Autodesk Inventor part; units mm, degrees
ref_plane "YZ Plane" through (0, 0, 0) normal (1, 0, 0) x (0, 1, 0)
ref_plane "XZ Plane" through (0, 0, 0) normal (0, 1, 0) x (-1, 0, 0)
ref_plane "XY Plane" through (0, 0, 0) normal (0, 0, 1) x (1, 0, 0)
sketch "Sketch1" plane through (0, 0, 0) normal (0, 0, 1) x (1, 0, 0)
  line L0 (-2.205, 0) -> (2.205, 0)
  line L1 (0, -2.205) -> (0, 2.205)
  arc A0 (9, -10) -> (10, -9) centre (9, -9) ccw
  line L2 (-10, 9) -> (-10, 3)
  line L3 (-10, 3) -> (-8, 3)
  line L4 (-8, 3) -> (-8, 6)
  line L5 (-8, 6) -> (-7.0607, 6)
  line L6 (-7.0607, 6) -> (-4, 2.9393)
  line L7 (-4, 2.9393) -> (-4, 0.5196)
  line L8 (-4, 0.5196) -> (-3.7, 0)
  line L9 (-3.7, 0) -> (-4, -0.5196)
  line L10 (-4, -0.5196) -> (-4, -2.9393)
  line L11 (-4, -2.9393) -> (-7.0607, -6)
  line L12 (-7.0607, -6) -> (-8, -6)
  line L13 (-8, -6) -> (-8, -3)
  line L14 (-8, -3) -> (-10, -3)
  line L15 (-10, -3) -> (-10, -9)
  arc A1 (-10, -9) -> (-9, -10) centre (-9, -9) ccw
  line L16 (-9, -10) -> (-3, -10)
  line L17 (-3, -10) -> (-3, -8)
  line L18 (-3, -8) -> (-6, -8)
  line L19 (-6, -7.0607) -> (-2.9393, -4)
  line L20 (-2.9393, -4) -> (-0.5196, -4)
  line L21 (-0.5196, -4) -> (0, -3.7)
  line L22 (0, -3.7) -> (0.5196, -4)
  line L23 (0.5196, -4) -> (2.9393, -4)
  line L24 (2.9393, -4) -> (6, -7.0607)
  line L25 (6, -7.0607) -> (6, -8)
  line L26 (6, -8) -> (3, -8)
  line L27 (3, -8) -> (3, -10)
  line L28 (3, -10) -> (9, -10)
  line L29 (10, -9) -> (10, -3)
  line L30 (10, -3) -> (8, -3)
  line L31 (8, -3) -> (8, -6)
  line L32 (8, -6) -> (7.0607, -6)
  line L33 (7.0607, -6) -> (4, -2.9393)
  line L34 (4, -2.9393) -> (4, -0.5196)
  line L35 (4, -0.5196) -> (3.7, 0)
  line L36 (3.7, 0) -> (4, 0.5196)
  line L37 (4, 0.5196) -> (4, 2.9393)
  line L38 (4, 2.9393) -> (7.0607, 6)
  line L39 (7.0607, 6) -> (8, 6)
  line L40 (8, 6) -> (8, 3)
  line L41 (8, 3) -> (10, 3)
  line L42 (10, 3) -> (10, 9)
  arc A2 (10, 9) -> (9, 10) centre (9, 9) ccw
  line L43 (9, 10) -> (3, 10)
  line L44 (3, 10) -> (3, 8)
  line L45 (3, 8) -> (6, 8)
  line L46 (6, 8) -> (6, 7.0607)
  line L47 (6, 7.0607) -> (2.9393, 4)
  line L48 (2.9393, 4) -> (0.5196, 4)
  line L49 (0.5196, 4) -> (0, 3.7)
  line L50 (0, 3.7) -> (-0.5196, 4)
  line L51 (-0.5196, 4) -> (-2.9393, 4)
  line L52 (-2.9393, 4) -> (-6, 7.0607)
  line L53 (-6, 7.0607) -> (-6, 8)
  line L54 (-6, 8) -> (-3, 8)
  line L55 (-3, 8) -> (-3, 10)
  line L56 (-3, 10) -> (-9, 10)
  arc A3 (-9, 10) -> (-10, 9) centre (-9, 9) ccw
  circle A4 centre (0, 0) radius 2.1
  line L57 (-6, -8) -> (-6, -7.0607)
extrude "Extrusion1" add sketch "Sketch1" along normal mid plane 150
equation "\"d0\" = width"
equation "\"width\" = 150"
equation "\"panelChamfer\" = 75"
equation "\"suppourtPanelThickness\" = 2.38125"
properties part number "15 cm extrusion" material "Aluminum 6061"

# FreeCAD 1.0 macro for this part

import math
import FreeCAD as App
import Part
import Sketcher
Q = App.Units.Quantity

doc = App.newDocument("Part")
params = doc.addObject("Spreadsheet::Sheet", "Params")
for row, (alias, value) in enumerate([
    ("sketch1_radius", "1 mm"),
    ("sketch1_diameter", "4.2 mm"),
    ("sketch1_width", "6 mm"),
    ("sketch1_width2", "2 mm"),
    ("sketch1_width3", "3 mm"),
    ("pad1_length", "150 mm"),
], start=1):
    params.set(f"A{row}", alias)
    params.set(f"B{row}", "=" + value)
    params.setAlias(f"B{row}", alias)

body = doc.addObject("PartDesign::Body", "Body")

sketch1 = body.newObject("Sketcher::SketchObject", "Sketch")
sketch1.AttachmentSupport = (doc.getObject("XY_Plane"), [""])
sketch1.MapMode = "FlatFace"
sketch1.addGeometry(Part.LineSegment(App.Vector(3, -10, 0), App.Vector(9, -10, 0)), False)
sketch1.addGeometry(Part.ArcOfCircle(Part.Circle(App.Vector(9, -9, 0), App.Vector(0, 0, 1), 1), math.radians(-90), math.radians(0)), False)
sketch1.addGeometry(Part.LineSegment(App.Vector(10, -9, 0), App.Vector(10, -3, 0)), False)
sketch1.addGeometry(Part.LineSegment(App.Vector(10, -3, 0), App.Vector(8, -3, 0)), False)
sketch1.addGeometry(Part.LineSegment(App.Vector(8, -3, 0), App.Vector(8, -6, 0)), False)
sketch1.addGeometry(Part.LineSegment(App.Vector(8, -6, 0), App.Vector(7.1, -6, 0)), False)
sketch1.addGeometry(Part.LineSegment(App.Vector(7.1, -6, 0), App.Vector(4, -2.9, 0)), False)
sketch1.addGeometry(Part.LineSegment(App.Vector(4, -2.9, 0), App.Vector(4, -0.5, 0)), False)
sketch1.addGeometry(Part.LineSegment(App.Vector(4, -0.5, 0), App.Vector(3.7, 0, 0)), False)
sketch1.addGeometry(Part.LineSegment(App.Vector(3.7, 0, 0), App.Vector(4, 0.5, 0)), False)
sketch1.addGeometry(Part.LineSegment(App.Vector(4, 0.5, 0), App.Vector(4, 2.9, 0)), False)
sketch1.addGeometry(Part.LineSegment(App.Vector(4, 2.9, 0), App.Vector(7.1, 6, 0)), False)
sketch1.addGeometry(Part.LineSegment(App.Vector(7.1, 6, 0), App.Vector(8, 6, 0)), False)
sketch1.addGeometry(Part.LineSegment(App.Vector(8, 6, 0), App.Vector(8, 3, 0)), False)
sketch1.addGeometry(Part.LineSegment(App.Vector(8, 3, 0), App.Vector(10, 3, 0)), False)
sketch1.addGeometry(Part.LineSegment(App.Vector(10, 3, 0), App.Vector(10, 9, 0)), False)
sketch1.addGeometry(Part.ArcOfCircle(Part.Circle(App.Vector(9, 9, 0), App.Vector(0, 0, 1), 1), math.radians(0), math.radians(90)), False)
sketch1.addGeometry(Part.LineSegment(App.Vector(9, 10, 0), App.Vector(3, 10, 0)), False)
sketch1.addGeometry(Part.LineSegment(App.Vector(3, 10, 0), App.Vector(3, 8, 0)), False)
sketch1.addGeometry(Part.LineSegment(App.Vector(3, 8, 0), App.Vector(6, 8, 0)), False)
sketch1.addGeometry(Part.LineSegment(App.Vector(6, 8, 0), App.Vector(6, 7.1, 0)), False)
sketch1.addGeometry(Part.LineSegment(App.Vector(6, 7.1, 0), App.Vector(2.9, 4, 0)), False)
sketch1.addGeometry(Part.LineSegment(App.Vector(2.9, 4, 0), App.Vector(0.5, 4, 0)), False)
sketch1.addGeometry(Part.LineSegment(App.Vector(0.5, 4, 0), App.Vector(0, 3.7, 0)), False)
sketch1.addGeometry(Part.LineSegment(App.Vector(0, 3.7, 0), App.Vector(-0.5, 4, 0)), False)
sketch1.addGeometry(Part.LineSegment(App.Vector(-0.5, 4, 0), App.Vector(-2.9, 4, 0)), False)
sketch1.addGeometry(Part.LineSegment(App.Vector(-2.9, 4, 0), App.Vector(-6, 7.1, 0)), False)
sketch1.addGeometry(Part.LineSegment(App.Vector(-6, 7.1, 0), App.Vector(-6, 8, 0)), False)
sketch1.addGeometry(Part.LineSegment(App.Vector(-6, 8, 0), App.Vector(-3, 8, 0)), False)
sketch1.addGeometry(Part.LineSegment(App.Vector(-3, 8, 0), App.Vector(-3, 10, 0)), False)
sketch1.addGeometry(Part.LineSegment(App.Vector(-3, 10, 0), App.Vector(-9, 10, 0)), False)
sketch1.addGeometry(Part.ArcOfCircle(Part.Circle(App.Vector(-9, 9, 0), App.Vector(0, 0, 1), 1), math.radians(90), math.radians(180)), False)
sketch1.addGeometry(Part.LineSegment(App.Vector(-10, 9, 0), App.Vector(-10, 3, 0)), False)
sketch1.addGeometry(Part.LineSegment(App.Vector(-10, 3, 0), App.Vector(-8, 3, 0)), False)
sketch1.addGeometry(Part.LineSegment(App.Vector(-8, 3, 0), App.Vector(-8, 6, 0)), False)
sketch1.addGeometry(Part.LineSegment(App.Vector(-8, 6, 0), App.Vector(-7.1, 6, 0)), False)
sketch1.addGeometry(Part.LineSegment(App.Vector(-7.1, 6, 0), App.Vector(-4, 2.9, 0)), False)
sketch1.addGeometry(Part.LineSegment(App.Vector(-4, 2.9, 0), App.Vector(-4, 0.5, 0)), False)
sketch1.addGeometry(Part.LineSegment(App.Vector(-4, 0.5, 0), App.Vector(-3.7, 0, 0)), False)
sketch1.addGeometry(Part.LineSegment(App.Vector(-3.7, 0, 0), App.Vector(-4, -0.5, 0)), False)
sketch1.addGeometry(Part.LineSegment(App.Vector(-4, -0.5, 0), App.Vector(-4, -2.9, 0)), False)
sketch1.addGeometry(Part.LineSegment(App.Vector(-4, -2.9, 0), App.Vector(-7.1, -6, 0)), False)
sketch1.addGeometry(Part.LineSegment(App.Vector(-7.1, -6, 0), App.Vector(-8, -6, 0)), False)
sketch1.addGeometry(Part.LineSegment(App.Vector(-8, -6, 0), App.Vector(-8, -3, 0)), False)
sketch1.addGeometry(Part.LineSegment(App.Vector(-8, -3, 0), App.Vector(-10, -3, 0)), False)
sketch1.addGeometry(Part.LineSegment(App.Vector(-10, -3, 0), App.Vector(-10, -9, 0)), False)
sketch1.addGeometry(Part.ArcOfCircle(Part.Circle(App.Vector(-9, -9, 0), App.Vector(0, 0, 1), 1), math.radians(180), math.radians(270)), False)
sketch1.addGeometry(Part.LineSegment(App.Vector(-9, -10, 0), App.Vector(-3, -10, 0)), False)
sketch1.addGeometry(Part.LineSegment(App.Vector(-3, -10, 0), App.Vector(-3, -8, 0)), False)
sketch1.addGeometry(Part.LineSegment(App.Vector(-3, -8, 0), App.Vector(-6, -8, 0)), False)
sketch1.addGeometry(Part.LineSegment(App.Vector(-6, -8, 0), App.Vector(-6, -7.1, 0)), False)
sketch1.addGeometry(Part.LineSegment(App.Vector(-6, -7.1, 0), App.Vector(-2.9, -4, 0)), False)
sketch1.addGeometry(Part.LineSegment(App.Vector(-2.9, -4, 0), App.Vector(-0.5, -4, 0)), False)
sketch1.addGeometry(Part.LineSegment(App.Vector(-0.5, -4, 0), App.Vector(0, -3.7, 0)), False)
sketch1.addGeometry(Part.LineSegment(App.Vector(0, -3.7, 0), App.Vector(0.5, -4, 0)), False)
sketch1.addGeometry(Part.LineSegment(App.Vector(0.5, -4, 0), App.Vector(2.9, -4, 0)), False)
sketch1.addGeometry(Part.LineSegment(App.Vector(2.9, -4, 0), App.Vector(6, -7.1, 0)), False)
sketch1.addGeometry(Part.LineSegment(App.Vector(6, -7.1, 0), App.Vector(6, -8, 0)), False)
sketch1.addGeometry(Part.LineSegment(App.Vector(6, -8, 0), App.Vector(3, -8, 0)), False)
sketch1.addGeometry(Part.LineSegment(App.Vector(3, -8, 0), App.Vector(3, -10, 0)), False)
sketch1.addGeometry(Part.Circle(App.Vector(0, 0, 0), App.Vector(0, 0, 1), 2.1), False)
sketch1.addConstraint(Sketcher.Constraint("Tangent", 0, 2, 1, 1))
sketch1.addConstraint(Sketcher.Constraint("Tangent", 1, 2, 2, 1))
sketch1.addConstraint(Sketcher.Constraint("Coincident", 2, 2, 3, 1))
sketch1.addConstraint(Sketcher.Constraint("Coincident", 3, 2, 4, 1))
sketch1.addConstraint(Sketcher.Constraint("Coincident", 4, 2, 5, 1))
sketch1.addConstraint(Sketcher.Constraint("Coincident", 5, 2, 6, 1))
sketch1.addConstraint(Sketcher.Constraint("Coincident", 6, 2, 7, 1))
sketch1.addConstraint(Sketcher.Constraint("Coincident", 7, 2, 8, 1))
sketch1.addConstraint(Sketcher.Constraint("Coincident", 8, 2, 9, 1))
sketch1.addConstraint(Sketcher.Constraint("Coincident", 9, 2, 10, 1))
sketch1.addConstraint(Sketcher.Constraint("Coincident", 10, 2, 11, 1))
sketch1.addConstraint(Sketcher.Constraint("Coincident", 11, 2, 12, 1))
sketch1.addConstraint(Sketcher.Constraint("Coincident", 12, 2, 13, 1))
sketch1.addConstraint(Sketcher.Constraint("Coincident", 13, 2, 14, 1))
sketch1.addConstraint(Sketcher.Constraint("Coincident", 14, 2, 15, 1))
sketch1.addConstraint(Sketcher.Constraint("Tangent", 15, 2, 16, 1))
sketch1.addConstraint(Sketcher.Constraint("Tangent", 16, 2, 17, 1))
sketch1.addConstraint(Sketcher.Constraint("Coincident", 17, 2, 18, 1))
sketch1.addConstraint(Sketcher.Constraint("Coincident", 18, 2, 19, 1))
sketch1.addConstraint(Sketcher.Constraint("Coincident", 19, 2, 20, 1))
sketch1.addConstraint(Sketcher.Constraint("Coincident", 20, 2, 21, 1))
sketch1.addConstraint(Sketcher.Constraint("Coincident", 21, 2, 22, 1))
sketch1.addConstraint(Sketcher.Constraint("Coincident", 22, 2, 23, 1))
sketch1.addConstraint(Sketcher.Constraint("Coincident", 23, 2, 24, 1))
sketch1.addConstraint(Sketcher.Constraint("Coincident", 24, 2, 25, 1))
sketch1.addConstraint(Sketcher.Constraint("Coincident", 25, 2, 26, 1))
sketch1.addConstraint(Sketcher.Constraint("Coincident", 26, 2, 27, 1))
sketch1.addConstraint(Sketcher.Constraint("Coincident", 27, 2, 28, 1))
sketch1.addConstraint(Sketcher.Constraint("Coincident", 28, 2, 29, 1))
sketch1.addConstraint(Sketcher.Constraint("Coincident", 29, 2, 30, 1))
sketch1.addConstraint(Sketcher.Constraint("Tangent", 30, 2, 31, 1))
sketch1.addConstraint(Sketcher.Constraint("Tangent", 31, 2, 32, 1))
sketch1.addConstraint(Sketcher.Constraint("Coincident", 32, 2, 33, 1))
sketch1.addConstraint(Sketcher.Constraint("Coincident", 33, 2, 34, 1))
sketch1.addConstraint(Sketcher.Constraint("Coincident", 34, 2, 35, 1))
sketch1.addConstraint(Sketcher.Constraint("Coincident", 35, 2, 36, 1))
sketch1.addConstraint(Sketcher.Constraint("Coincident", 36, 2, 37, 1))
sketch1.addConstraint(Sketcher.Constraint("Coincident", 37, 2, 38, 1))
sketch1.addConstraint(Sketcher.Constraint("Coincident", 38, 2, 39, 1))
sketch1.addConstraint(Sketcher.Constraint("Coincident", 39, 2, 40, 1))
sketch1.addConstraint(Sketcher.Constraint("Coincident", 40, 2, 41, 1))
sketch1.addConstraint(Sketcher.Constraint("Coincident", 41, 2, 42, 1))
sketch1.addConstraint(Sketcher.Constraint("Coincident", 42, 2, 43, 1))
sketch1.addConstraint(Sketcher.Constraint("Coincident", 43, 2, 44, 1))
sketch1.addConstraint(Sketcher.Constraint("Coincident", 44, 2, 45, 1))
sketch1.addConstraint(Sketcher.Constraint("Tangent", 45, 2, 46, 1))
sketch1.addConstraint(Sketcher.Constraint("Tangent", 46, 2, 47, 1))
sketch1.addConstraint(Sketcher.Constraint("Coincident", 47, 2, 48, 1))
sketch1.addConstraint(Sketcher.Constraint("Coincident", 48, 2, 49, 1))
sketch1.addConstraint(Sketcher.Constraint("Coincident", 49, 2, 50, 1))
sketch1.addConstraint(Sketcher.Constraint("Coincident", 50, 2, 51, 1))
sketch1.addConstraint(Sketcher.Constraint("Coincident", 51, 2, 52, 1))
sketch1.addConstraint(Sketcher.Constraint("Coincident", 52, 2, 53, 1))
sketch1.addConstraint(Sketcher.Constraint("Coincident", 53, 2, 54, 1))
sketch1.addConstraint(Sketcher.Constraint("Coincident", 54, 2, 55, 1))
sketch1.addConstraint(Sketcher.Constraint("Coincident", 55, 2, 56, 1))
sketch1.addConstraint(Sketcher.Constraint("Coincident", 56, 2, 57, 1))
sketch1.addConstraint(Sketcher.Constraint("Coincident", 57, 2, 58, 1))
sketch1.addConstraint(Sketcher.Constraint("Coincident", 58, 2, 59, 1))
sketch1.addConstraint(Sketcher.Constraint("Coincident", 59, 2, 0, 1))
sketch1.addConstraint(Sketcher.Constraint("Horizontal", 0))
sketch1.addConstraint(Sketcher.Constraint("Vertical", 2))
sketch1.addConstraint(Sketcher.Constraint("Horizontal", 3))
sketch1.addConstraint(Sketcher.Constraint("Vertical", 4))
sketch1.addConstraint(Sketcher.Constraint("Horizontal", 5))
sketch1.addConstraint(Sketcher.Constraint("Vertical", 7))
sketch1.addConstraint(Sketcher.Constraint("Vertical", 10))
sketch1.addConstraint(Sketcher.Constraint("Horizontal", 12))
sketch1.addConstraint(Sketcher.Constraint("Vertical", 13))
sketch1.addConstraint(Sketcher.Constraint("Horizontal", 14))
sketch1.addConstraint(Sketcher.Constraint("Vertical", 15))
sketch1.addConstraint(Sketcher.Constraint("Horizontal", 17))
sketch1.addConstraint(Sketcher.Constraint("Vertical", 18))
sketch1.addConstraint(Sketcher.Constraint("Horizontal", 19))
sketch1.addConstraint(Sketcher.Constraint("Vertical", 20))
sketch1.addConstraint(Sketcher.Constraint("Horizontal", 22))
sketch1.addConstraint(Sketcher.Constraint("Horizontal", 25))
sketch1.addConstraint(Sketcher.Constraint("Vertical", 27))
sketch1.addConstraint(Sketcher.Constraint("Horizontal", 28))
sketch1.addConstraint(Sketcher.Constraint("Vertical", 29))
sketch1.addConstraint(Sketcher.Constraint("Horizontal", 30))
sketch1.addConstraint(Sketcher.Constraint("Vertical", 32))
sketch1.addConstraint(Sketcher.Constraint("Horizontal", 33))
sketch1.addConstraint(Sketcher.Constraint("Vertical", 34))
sketch1.addConstraint(Sketcher.Constraint("Horizontal", 35))
sketch1.addConstraint(Sketcher.Constraint("Vertical", 37))
sketch1.addConstraint(Sketcher.Constraint("Vertical", 40))
sketch1.addConstraint(Sketcher.Constraint("Horizontal", 42))
sketch1.addConstraint(Sketcher.Constraint("Vertical", 43))
sketch1.addConstraint(Sketcher.Constraint("Horizontal", 44))
sketch1.addConstraint(Sketcher.Constraint("Vertical", 45))
sketch1.addConstraint(Sketcher.Constraint("Horizontal", 47))
sketch1.addConstraint(Sketcher.Constraint("Vertical", 48))
sketch1.addConstraint(Sketcher.Constraint("Horizontal", 49))
sketch1.addConstraint(Sketcher.Constraint("Vertical", 50))
sketch1.addConstraint(Sketcher.Constraint("Horizontal", 52))
sketch1.addConstraint(Sketcher.Constraint("Horizontal", 55))
sketch1.addConstraint(Sketcher.Constraint("Vertical", 57))
sketch1.addConstraint(Sketcher.Constraint("Horizontal", 58))
sketch1.addConstraint(Sketcher.Constraint("Vertical", 59))
sketch1.addConstraint(Sketcher.Constraint("Coincident", 60, 3, -1, 1))
sketch1.addConstraint(Sketcher.Constraint("Equal", 1, 16))
sketch1.addConstraint(Sketcher.Constraint("Equal", 16, 31))
sketch1.addConstraint(Sketcher.Constraint("Equal", 31, 46))
sketch1.addConstraint(Sketcher.Constraint("Symmetric", 1, 3, 31, 3, -1, 1))
sketch1.addConstraint(Sketcher.Constraint("Symmetric", 16, 3, 46, 3, -1, 1))
sketch1.addConstraint(Sketcher.Constraint("Symmetric", 3, 2, 33, 2, -1, 1))
sketch1.addConstraint(Sketcher.Constraint("Symmetric", 5, 2, 35, 2, -1, 1))
sketch1.addConstraint(Sketcher.Constraint("Symmetric", 6, 2, 36, 2, -1, 1))
sketch1.addConstraint(Sketcher.Constraint("Symmetric", 8, 2, 38, 2, -1, 1))
sketch1.addConstraint(Sketcher.Constraint("Symmetric", 9, 2, 39, 2, -1, 1))
sketch1.addConstraint(Sketcher.Constraint("Symmetric", 11, 2, 41, 2, -1, 1))
sketch1.addConstraint(Sketcher.Constraint("Symmetric", 13, 2, 43, 2, -1, 1))
sketch1.addConstraint(Sketcher.Constraint("Symmetric", 18, 2, 48, 2, -1, 1))
sketch1.addConstraint(Sketcher.Constraint("Symmetric", 20, 2, 50, 2, -1, 1))
sketch1.addConstraint(Sketcher.Constraint("Symmetric", 21, 2, 51, 2, -1, 1))
sketch1.addConstraint(Sketcher.Constraint("Symmetric", 23, 2, 53, 2, -1, 1))
sketch1.addConstraint(Sketcher.Constraint("Symmetric", 24, 2, 54, 2, -1, 1))
sketch1.addConstraint(Sketcher.Constraint("Symmetric", 26, 2, 56, 2, -1, 1))
sketch1.addConstraint(Sketcher.Constraint("Symmetric", 28, 2, 58, 2, -1, 1))
sketch1.addConstraint(Sketcher.Constraint("Symmetric", 16, 3, 31, 3, -2))
sketch1.addConstraint(Sketcher.Constraint("Symmetric", 22, 2, 24, 2, -2))
sketch1.addConstraint(Sketcher.Constraint("Symmetric", 20, 2, 26, 2, -2))
sketch1.addConstraint(Sketcher.Constraint("Symmetric", 18, 2, 28, 2, -2))
sketch1.addConstraint(Sketcher.Constraint("Symmetric", 13, 2, 33, 2, -2))
sketch1.addConstraint(Sketcher.Constraint("Symmetric", 11, 2, 35, 2, -2))
sketch1.addConstraint(Sketcher.Constraint("Symmetric", 10, 2, 36, 2, -2))
sketch1.addConstraint(Sketcher.Constraint("PointOnObject", 8, 2, -1))
sketch1.addConstraint(Sketcher.Constraint("PointOnObject", 23, 2, -2))
sketch1.addConstraint(Sketcher.Constraint("Perpendicular", 6, 11))
sketch1.addConstraint(Sketcher.Constraint("Parallel", 11, 21))
sketch1.addConstraint(Sketcher.Constraint("Perpendicular", 8, 23))
sketch1.addConstraint(Sketcher.Constraint("Perpendicular", 9, 24))
sketch1.addConstraint(Sketcher.Constraint("Perpendicular", 21, 26))
sketch1.addConstraint(Sketcher.Constraint("Perpendicular", 23, 38))
sketch1.addConstraint(Sketcher.Constraint("Perpendicular", 36, 41))
sketch1.addConstraint(Sketcher.Constraint("Perpendicular", 38, 53))
sketch1.addConstraint(Sketcher.Constraint("Perpendicular", 51, 56))
sketch1.addConstraint(Sketcher.Constraint("Equal", 47, 2))
sketch1.addConstraint(Sketcher.Constraint("Equal", 58, 4))
sketch1.addConstraint(Sketcher.Constraint("Equal", 55, 7))
sketch1.addConstraint(Sketcher.Constraint("Equal", 44, 18))
sketch1.addConstraint(Sketcher.Constraint("Equal", 42, 20))
sketch1.addConstraint(Sketcher.Constraint("Equal", 11, 21))
sketch1.addConstraint(Sketcher.Constraint("Equal", 9, 23))
sketch1.addConstraint(Sketcher.Constraint("Radius", 1, Q("1 mm")))
sketch1.addConstraint(Sketcher.Constraint("Diameter", 60, Q("4.2 mm")))
sketch1.addConstraint(Sketcher.Constraint("DistanceX", 0, 1, 0, 2, Q("6 mm")))
sketch1.addConstraint(Sketcher.Constraint("DistanceX", 3, 2, 3, 1, Q("2 mm")))
sketch1.addConstraint(Sketcher.Constraint("DistanceX", 19, 1, 19, 2, Q("3 mm")))
sketch1.addConstraint(Sketcher.Constraint("Angle", 8, Q("120.0007 deg")))
sketch1.addConstraint(Sketcher.Constraint("DistanceX", -1, 1, 1, 3, Q("9 mm")))
sketch1.addConstraint(Sketcher.Constraint("DistanceX", -1, 1, 6, 2, Q("4 mm")))
sketch1.addConstraint(Sketcher.Constraint("Distance", 8, Q("0.6 mm")))
sketch1.addConstraint(Sketcher.Constraint("DistanceX", 5, 2, 5, 1, Q("0.9393 mm")))
sketch1.setExpression("Constraints[145]", "Params.sketch1_radius")
sketch1.setExpression("Constraints[146]", "Params.sketch1_diameter")
sketch1.setExpression("Constraints[147]", "Params.sketch1_width")
sketch1.setExpression("Constraints[148]", "Params.sketch1_width2")
sketch1.setExpression("Constraints[149]", "Params.sketch1_width3")
pad1 = body.newObject("PartDesign::Pad", "Pad")
pad1.Profile = sketch1
pad1.setExpression("Length", "Params.pad1_length")
pad1.Midplane = True

doc.recompute()
